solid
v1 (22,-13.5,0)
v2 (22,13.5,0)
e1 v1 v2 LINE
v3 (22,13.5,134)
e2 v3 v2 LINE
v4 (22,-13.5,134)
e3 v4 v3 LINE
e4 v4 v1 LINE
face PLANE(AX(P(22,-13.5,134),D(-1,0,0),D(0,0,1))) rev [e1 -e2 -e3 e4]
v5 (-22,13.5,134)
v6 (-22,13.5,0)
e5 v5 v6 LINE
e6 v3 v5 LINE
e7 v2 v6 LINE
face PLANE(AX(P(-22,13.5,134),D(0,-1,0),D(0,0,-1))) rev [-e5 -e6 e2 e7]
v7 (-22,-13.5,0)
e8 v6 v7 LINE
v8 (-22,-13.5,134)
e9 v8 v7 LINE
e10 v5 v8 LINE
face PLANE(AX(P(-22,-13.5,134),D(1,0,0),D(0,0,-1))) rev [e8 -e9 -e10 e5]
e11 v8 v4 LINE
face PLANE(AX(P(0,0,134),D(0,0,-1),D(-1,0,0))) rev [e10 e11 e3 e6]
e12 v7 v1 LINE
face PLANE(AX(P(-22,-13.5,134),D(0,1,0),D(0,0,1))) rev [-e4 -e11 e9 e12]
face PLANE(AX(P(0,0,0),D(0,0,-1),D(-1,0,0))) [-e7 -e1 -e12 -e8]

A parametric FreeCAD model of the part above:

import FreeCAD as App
import Part
import Sketcher

V = App.Vector

doc = App.newDocument("Part")
body = doc.addObject("PartDesign::Body", "Body")

# Sketch on XY plane
sketch1 = body.newObject("Sketcher::SketchObject", "Sketch")
sketch1.AttachmentSupport = (doc.getObject("XY_Plane"), [""])
sketch1.MapMode = "FlatFace"
sketch1.addGeometry([
    Part.LineSegment(V(-22, 13.5, 0), V(-22, -13.5, 0)),
    Part.LineSegment(V(-22, -13.5, 0), V(22, -13.5, 0)),
    Part.LineSegment(V(22, -13.5, 0), V(22, 13.5, 0)),
    Part.LineSegment(V(22, 13.5, 0), V(-22, 13.5, 0)),
], False)
sketch1.addConstraint([
    Sketcher.Constraint("Coincident", 0, 2, 1, 1),
    Sketcher.Constraint("Coincident", 1, 2, 2, 1),
    Sketcher.Constraint("Coincident", 2, 2, 3, 1),
    Sketcher.Constraint("Coincident", 3, 2, 0, 1),
    Sketcher.Constraint("Vertical", 0),
    Sketcher.Constraint("Horizontal", 1),
    Sketcher.Constraint("Vertical", 2),
    Sketcher.Constraint("Horizontal", 3),
    Sketcher.Constraint("Symmetric", 0, 2, 2, 2, -1, 1),
    Sketcher.Constraint("DistanceX", 1, 1, 1, 2, 44.0),
    Sketcher.Constraint("DistanceY", 0, 2, 0, 1, 27.0),
])
pad1 = body.newObject("PartDesign::Pad", "Pad")
pad1.Profile = sketch1
pad1.Length = 134

doc.recompute()
